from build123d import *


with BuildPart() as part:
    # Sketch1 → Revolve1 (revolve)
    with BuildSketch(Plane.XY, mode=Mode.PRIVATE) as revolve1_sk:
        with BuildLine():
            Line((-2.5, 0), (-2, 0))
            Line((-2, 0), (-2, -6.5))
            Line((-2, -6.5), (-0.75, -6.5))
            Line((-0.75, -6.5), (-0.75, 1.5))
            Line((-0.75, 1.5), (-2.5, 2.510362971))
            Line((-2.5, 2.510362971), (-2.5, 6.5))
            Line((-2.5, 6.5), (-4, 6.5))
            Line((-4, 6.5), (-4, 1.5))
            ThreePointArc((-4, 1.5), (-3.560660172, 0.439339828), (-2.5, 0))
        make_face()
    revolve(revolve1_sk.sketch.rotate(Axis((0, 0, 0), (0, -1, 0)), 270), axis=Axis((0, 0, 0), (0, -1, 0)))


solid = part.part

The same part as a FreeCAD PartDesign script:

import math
import FreeCAD as App
import Part
import Sketcher
Q = App.Units.Quantity

doc = App.newDocument("Part")
body = doc.addObject("PartDesign::Body", "Body")

# Sketch on XY plane
sketch1 = doc.addObject("Sketcher::SketchObject", "Sketch")
body.addObject(sketch1)
sketch1.AttachmentSupport = (doc.XY_Plane, [""])
sketch1.MapMode = "FlatFace"
sketch1.addGeometry([
    Part.LineSegment(App.Vector(-2.5, 0, 0), App.Vector(-2, 0, 0)),  # 0
    Part.LineSegment(App.Vector(-2, 0, 0), App.Vector(-2, -6.5, 0)),  # 1
    Part.LineSegment(App.Vector(-2, -6.5, 0), App.Vector(-0.8, -6.5, 0)),  # 2
    Part.LineSegment(App.Vector(-0.8, -6.5, 0), App.Vector(-0.8, 1.5, 0)),  # 3
    Part.LineSegment(App.Vector(-0.8, 1.5, 0), App.Vector(-2.5, 2.5, 0)),  # 4
    Part.LineSegment(App.Vector(-2.5, 2.5, 0), App.Vector(-2.5, 6.5, 0)),  # 5
    Part.LineSegment(App.Vector(-2.5, 6.5, 0), App.Vector(-4, 6.5, 0)),  # 6
    Part.LineSegment(App.Vector(-4, 6.5, 0), App.Vector(-4, 1.5, 0)),  # 7
    Part.ArcOfCircle(Part.Circle(App.Vector(-2.5, 1.5, 0), App.Vector(0, 0, 1), 1.5), math.radians(180), math.radians(270)),  # 8
], False)
sketch1.addConstraint([
    Sketcher.Constraint("Coincident", 0, 2, 1, 1),
    Sketcher.Constraint("Coincident", 1, 2, 2, 1),
    Sketcher.Constraint("Coincident", 2, 2, 3, 1),
    Sketcher.Constraint("Coincident", 3, 2, 4, 1),
    Sketcher.Constraint("Coincident", 4, 2, 5, 1),
    Sketcher.Constraint("Coincident", 5, 2, 6, 1),
    Sketcher.Constraint("Coincident", 6, 2, 7, 1),
    Sketcher.Constraint("Tangent", 7, 2, 8, 1),
    Sketcher.Constraint("Tangent", 8, 2, 0, 1),
    Sketcher.Constraint("Horizontal", 0),
    Sketcher.Constraint("Vertical", 1),
    Sketcher.Constraint("Horizontal", 2),
    Sketcher.Constraint("Vertical", 3),
    Sketcher.Constraint("Vertical", 5),
    Sketcher.Constraint("Horizontal", 6),
    Sketcher.Constraint("Vertical", 7),
    Sketcher.Constraint("PointOnObject", 0, 2, -1),
    Sketcher.Constraint("Horizontal", 8, 3, 3, 2),
    Sketcher.Constraint("Vertical", 8, 3, 4, 2),
    Sketcher.Constraint("Radius", 8, 1.5),
    Sketcher.Constraint("DistanceY", 3, 1, 3, 2, 8.0),
    Sketcher.Constraint("DistanceY", 7, 2, 7, 1, 5.0),
    Sketcher.Constraint("Angle", 4, Q("150 deg")),
    Sketcher.Constraint("DistanceX", 0, 1, 0, 2, 0.5),
    Sketcher.Constraint("DistanceX", 0, 2, -1, 1, 2.0),
    Sketcher.Constraint("DistanceX", 2, 1, 2, 2, 1.25),
])
revolution = doc.addObject("PartDesign::Revolution", "Revolution")
body.addObject(revolution)
revolution.Profile = sketch1
revolution.ReferenceAxis = (sketch1, ["V_Axis"])
revolution.Angle = 360

doc.recompute()
